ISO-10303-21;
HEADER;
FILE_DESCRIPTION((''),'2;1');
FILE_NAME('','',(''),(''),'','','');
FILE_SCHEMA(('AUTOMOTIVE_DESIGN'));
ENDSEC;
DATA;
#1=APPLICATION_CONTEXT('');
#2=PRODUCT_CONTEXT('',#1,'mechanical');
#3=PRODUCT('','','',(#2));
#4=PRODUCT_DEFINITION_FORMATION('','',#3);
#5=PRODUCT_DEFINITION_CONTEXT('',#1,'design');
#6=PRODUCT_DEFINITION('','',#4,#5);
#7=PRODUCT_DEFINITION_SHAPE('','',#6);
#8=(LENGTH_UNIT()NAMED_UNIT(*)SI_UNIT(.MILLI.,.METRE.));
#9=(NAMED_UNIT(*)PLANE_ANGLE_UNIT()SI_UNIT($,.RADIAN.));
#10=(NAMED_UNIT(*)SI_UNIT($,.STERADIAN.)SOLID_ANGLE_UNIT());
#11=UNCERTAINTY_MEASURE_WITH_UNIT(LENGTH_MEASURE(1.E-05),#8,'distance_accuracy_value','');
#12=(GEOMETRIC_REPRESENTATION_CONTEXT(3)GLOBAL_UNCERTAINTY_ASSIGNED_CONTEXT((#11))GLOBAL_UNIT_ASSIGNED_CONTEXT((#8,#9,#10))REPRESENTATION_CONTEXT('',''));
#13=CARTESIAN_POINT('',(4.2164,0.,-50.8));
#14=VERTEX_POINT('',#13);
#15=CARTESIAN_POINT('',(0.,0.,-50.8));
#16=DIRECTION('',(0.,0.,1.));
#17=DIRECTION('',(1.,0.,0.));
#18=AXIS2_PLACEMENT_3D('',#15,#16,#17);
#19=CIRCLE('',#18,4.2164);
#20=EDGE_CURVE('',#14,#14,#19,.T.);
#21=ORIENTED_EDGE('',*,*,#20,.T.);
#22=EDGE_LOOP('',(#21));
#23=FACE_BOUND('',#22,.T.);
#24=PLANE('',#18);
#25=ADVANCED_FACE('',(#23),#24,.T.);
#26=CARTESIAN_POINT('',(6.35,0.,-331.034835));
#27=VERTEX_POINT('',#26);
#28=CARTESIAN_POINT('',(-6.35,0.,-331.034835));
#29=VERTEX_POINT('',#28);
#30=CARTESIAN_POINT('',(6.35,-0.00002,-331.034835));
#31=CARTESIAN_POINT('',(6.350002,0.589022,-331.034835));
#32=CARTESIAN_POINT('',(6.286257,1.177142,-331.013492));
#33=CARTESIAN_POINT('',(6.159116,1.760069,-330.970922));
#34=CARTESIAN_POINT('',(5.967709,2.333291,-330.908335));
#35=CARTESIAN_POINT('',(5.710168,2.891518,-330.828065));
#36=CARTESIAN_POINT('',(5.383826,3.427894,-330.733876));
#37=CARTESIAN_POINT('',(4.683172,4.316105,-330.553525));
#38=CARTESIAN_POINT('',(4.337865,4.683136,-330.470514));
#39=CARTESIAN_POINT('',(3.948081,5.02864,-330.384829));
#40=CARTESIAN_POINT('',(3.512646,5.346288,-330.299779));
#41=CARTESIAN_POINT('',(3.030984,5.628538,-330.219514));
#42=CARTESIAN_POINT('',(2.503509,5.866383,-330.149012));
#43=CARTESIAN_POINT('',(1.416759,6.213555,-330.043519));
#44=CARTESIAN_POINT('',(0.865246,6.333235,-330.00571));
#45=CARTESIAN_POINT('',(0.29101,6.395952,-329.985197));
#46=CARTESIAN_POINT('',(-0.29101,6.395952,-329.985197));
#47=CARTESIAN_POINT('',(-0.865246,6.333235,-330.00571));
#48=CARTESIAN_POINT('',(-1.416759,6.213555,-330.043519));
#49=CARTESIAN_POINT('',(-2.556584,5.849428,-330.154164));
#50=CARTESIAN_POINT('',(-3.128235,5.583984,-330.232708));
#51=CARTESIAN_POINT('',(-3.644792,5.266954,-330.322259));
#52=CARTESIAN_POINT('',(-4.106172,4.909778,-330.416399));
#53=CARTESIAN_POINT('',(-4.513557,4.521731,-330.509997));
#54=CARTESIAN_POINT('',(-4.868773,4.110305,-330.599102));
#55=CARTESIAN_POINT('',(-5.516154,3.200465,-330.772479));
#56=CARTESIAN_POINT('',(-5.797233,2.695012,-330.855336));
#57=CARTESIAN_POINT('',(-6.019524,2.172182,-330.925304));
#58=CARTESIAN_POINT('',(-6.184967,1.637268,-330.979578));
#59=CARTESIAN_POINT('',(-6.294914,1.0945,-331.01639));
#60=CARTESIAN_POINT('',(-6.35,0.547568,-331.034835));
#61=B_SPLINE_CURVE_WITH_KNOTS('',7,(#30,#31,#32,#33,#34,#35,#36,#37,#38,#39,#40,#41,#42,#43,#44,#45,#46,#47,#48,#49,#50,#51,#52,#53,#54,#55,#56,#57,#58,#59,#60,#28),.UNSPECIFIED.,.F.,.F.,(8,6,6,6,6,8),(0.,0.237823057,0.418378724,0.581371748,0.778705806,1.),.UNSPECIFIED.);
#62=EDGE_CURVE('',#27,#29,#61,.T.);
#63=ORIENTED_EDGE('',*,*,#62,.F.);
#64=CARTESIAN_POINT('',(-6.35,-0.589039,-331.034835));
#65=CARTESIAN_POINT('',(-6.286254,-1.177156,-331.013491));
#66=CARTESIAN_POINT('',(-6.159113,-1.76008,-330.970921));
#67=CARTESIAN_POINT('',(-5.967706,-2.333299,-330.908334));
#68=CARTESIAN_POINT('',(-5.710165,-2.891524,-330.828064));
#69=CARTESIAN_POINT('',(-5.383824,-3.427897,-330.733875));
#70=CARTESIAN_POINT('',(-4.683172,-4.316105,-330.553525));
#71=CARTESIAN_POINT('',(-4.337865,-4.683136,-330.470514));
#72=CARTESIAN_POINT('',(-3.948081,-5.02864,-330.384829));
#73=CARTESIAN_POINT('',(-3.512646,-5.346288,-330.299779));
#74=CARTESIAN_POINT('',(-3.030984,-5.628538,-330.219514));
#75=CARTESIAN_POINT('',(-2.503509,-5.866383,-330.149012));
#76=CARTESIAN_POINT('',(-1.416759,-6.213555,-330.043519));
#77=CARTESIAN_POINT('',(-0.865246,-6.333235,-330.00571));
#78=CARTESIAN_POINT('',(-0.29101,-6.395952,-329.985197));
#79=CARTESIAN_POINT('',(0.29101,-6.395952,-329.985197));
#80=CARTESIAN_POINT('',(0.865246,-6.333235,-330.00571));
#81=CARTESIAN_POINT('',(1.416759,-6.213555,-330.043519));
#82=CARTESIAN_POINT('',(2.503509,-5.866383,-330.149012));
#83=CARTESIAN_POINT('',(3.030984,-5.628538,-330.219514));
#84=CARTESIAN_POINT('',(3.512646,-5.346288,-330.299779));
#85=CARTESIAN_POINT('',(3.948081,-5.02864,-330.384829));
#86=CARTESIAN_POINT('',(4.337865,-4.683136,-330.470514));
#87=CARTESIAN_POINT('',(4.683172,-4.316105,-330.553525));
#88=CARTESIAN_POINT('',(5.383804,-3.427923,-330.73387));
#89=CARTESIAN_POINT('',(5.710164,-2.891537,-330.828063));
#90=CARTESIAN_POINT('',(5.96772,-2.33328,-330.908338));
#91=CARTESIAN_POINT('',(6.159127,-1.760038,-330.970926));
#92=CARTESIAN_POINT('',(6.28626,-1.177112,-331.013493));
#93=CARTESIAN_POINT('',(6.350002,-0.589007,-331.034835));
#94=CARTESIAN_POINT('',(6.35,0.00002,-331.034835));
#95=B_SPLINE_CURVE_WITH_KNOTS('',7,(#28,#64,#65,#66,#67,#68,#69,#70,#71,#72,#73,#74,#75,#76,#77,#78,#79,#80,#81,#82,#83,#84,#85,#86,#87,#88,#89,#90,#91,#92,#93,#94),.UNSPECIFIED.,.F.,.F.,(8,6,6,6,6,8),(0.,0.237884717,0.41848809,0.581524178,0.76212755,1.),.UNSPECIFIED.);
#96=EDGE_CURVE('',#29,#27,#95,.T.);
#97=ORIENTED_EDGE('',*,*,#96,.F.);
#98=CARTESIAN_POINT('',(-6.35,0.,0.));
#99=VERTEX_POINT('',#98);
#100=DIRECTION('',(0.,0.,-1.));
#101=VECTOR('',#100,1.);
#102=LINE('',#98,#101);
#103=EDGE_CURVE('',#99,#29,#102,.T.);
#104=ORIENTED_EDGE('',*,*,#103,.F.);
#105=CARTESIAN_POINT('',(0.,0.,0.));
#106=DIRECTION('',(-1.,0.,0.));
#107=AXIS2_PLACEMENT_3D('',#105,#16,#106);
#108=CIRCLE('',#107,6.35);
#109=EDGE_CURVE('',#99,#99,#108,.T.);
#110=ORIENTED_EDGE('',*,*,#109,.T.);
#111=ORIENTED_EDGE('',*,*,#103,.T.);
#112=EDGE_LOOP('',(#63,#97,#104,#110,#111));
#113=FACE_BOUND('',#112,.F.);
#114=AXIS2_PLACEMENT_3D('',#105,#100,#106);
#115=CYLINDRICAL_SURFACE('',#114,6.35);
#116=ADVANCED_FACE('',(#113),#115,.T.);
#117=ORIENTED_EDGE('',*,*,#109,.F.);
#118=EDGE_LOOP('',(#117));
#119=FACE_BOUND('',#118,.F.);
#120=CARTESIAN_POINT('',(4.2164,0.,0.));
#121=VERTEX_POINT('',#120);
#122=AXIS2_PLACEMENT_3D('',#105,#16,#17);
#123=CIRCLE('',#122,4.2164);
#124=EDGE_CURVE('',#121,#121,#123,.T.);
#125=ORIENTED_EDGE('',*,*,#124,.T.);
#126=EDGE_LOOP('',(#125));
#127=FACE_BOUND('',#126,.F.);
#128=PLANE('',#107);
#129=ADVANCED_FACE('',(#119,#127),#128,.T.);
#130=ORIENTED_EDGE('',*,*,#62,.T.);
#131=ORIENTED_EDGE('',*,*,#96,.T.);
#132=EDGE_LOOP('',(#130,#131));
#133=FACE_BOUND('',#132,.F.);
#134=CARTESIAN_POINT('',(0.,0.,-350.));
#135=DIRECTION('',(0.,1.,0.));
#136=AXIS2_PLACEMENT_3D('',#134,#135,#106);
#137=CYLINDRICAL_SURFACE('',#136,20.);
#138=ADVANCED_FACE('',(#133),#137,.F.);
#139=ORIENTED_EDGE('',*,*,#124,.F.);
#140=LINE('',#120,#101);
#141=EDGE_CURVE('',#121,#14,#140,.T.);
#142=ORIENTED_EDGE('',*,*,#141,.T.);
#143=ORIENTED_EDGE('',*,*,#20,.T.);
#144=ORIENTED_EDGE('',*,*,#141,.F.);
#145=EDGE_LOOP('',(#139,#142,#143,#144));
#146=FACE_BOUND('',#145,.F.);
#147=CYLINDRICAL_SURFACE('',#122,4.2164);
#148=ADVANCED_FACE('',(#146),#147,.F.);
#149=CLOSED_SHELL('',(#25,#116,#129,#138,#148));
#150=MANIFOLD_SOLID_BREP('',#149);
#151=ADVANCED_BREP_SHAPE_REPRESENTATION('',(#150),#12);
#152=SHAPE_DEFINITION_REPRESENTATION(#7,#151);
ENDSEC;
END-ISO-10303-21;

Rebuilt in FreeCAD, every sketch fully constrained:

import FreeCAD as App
import Part
import Sketcher

V = App.Vector
Q = App.Units.Quantity

doc = App.newDocument("Part")
params = doc.addObject("Spreadsheet::Sheet", "Params")
for row, (alias, value) in enumerate([
    ("sketch1_width", "0.25 in"),
    ("revolution_angle", "360 deg"),
    ("sketch3_diameter", "0.332 in"),
    ("pocket2_length", "2 in"),
], start=1):
    params.set(f"A{row}", alias)
    params.set(f"B{row}", "=" + value)
    params.setAlias(f"B{row}", alias)

body = doc.addObject("PartDesign::Body", "Body")

# Sketch on XZ plane
sketch1 = body.newObject("Sketcher::SketchObject", "Sketch")
sketch1.AttachmentSupport = (doc.getObject("XZ_Plane"), [""])
sketch1.MapMode = "FlatFace"
sketch1.addGeometry([
    Part.LineSegment(V(-6, 0, 0), V(0, 0, 0)),
    Part.LineSegment(V(0, 0, 0), V(0, -350, 0)),
    Part.LineSegment(V(0, -350, 0), V(-6, -350, 0)),
    Part.LineSegment(V(-6, -350, 0), V(-6, 0, 0)),
], False)
sketch1.addConstraint([
    Sketcher.Constraint("Coincident", 0, 2, 1, 1),
    Sketcher.Constraint("Coincident", 1, 2, 2, 1),
    Sketcher.Constraint("Coincident", 2, 2, 3, 1),
    Sketcher.Constraint("Coincident", 3, 2, 0, 1),
    Sketcher.Constraint("Horizontal", 0),
    Sketcher.Constraint("Vertical", 1),
    Sketcher.Constraint("Horizontal", 2),
    Sketcher.Constraint("Vertical", 3),
    Sketcher.Constraint("Coincident", 0, 2, -1, 1),
    Sketcher.Constraint("DistanceX", 0, 1, 0, 2, Q("0.25 in")),
    Sketcher.Constraint("DistanceY", 1, 2, 1, 1, 350.0),
])
sketch1.setExpression("Constraints[9]", "Params.sketch1_width")
revolution = body.newObject("PartDesign::Revolution", "Revolution")
revolution.Profile = sketch1
revolution.ReferenceAxis = (sketch1, ["V_Axis"])
revolution.setExpression("Angle", "Params.revolution_angle")

# Sketch on XZ plane
sketch2 = body.newObject("Sketcher::SketchObject", "Sketch001")
sketch2.AttachmentSupport = (doc.getObject("XZ_Plane"), [""])
sketch2.MapMode = "FlatFace"
sketch2.addGeometry(Part.Circle(V(0, -350, 0), V(0, 0, 1), 20), False)
sketch2.addConstraint([
    Sketcher.Constraint("PointOnObject", 0, 3, -2),
    Sketcher.Constraint("Diameter", 0, Q("1.5748 in")),
    Sketcher.Constraint("DistanceY", 0, 3, -1, 1, 350.0),
])
pocket1 = body.newObject("PartDesign::Pocket", "Pocket")
pocket1.Profile = sketch2
pocket1.Type = "ThroughAll"
pocket1.Midplane = True

# Sketch on XY plane
sketch3 = body.newObject("Sketcher::SketchObject", "Sketch002")
sketch3.AttachmentSupport = (doc.getObject("XY_Plane"), [""])
sketch3.MapMode = "FlatFace"
sketch3.addGeometry(Part.Circle(V(0, 0, 0), V(0, 0, 1), 4.2), False)
sketch3.addConstraint([
    Sketcher.Constraint("Coincident", 0, 3, -1, 1),
    Sketcher.Constraint("Diameter", 0, Q("0.332 in")),
])
sketch3.setExpression("Constraints[1]", "Params.sketch3_diameter")
pocket2 = body.newObject("PartDesign::Pocket", "Pocket001")
pocket2.Profile = sketch3
pocket2.setExpression("Length", "Params.pocket2_length")

doc.recompute()
